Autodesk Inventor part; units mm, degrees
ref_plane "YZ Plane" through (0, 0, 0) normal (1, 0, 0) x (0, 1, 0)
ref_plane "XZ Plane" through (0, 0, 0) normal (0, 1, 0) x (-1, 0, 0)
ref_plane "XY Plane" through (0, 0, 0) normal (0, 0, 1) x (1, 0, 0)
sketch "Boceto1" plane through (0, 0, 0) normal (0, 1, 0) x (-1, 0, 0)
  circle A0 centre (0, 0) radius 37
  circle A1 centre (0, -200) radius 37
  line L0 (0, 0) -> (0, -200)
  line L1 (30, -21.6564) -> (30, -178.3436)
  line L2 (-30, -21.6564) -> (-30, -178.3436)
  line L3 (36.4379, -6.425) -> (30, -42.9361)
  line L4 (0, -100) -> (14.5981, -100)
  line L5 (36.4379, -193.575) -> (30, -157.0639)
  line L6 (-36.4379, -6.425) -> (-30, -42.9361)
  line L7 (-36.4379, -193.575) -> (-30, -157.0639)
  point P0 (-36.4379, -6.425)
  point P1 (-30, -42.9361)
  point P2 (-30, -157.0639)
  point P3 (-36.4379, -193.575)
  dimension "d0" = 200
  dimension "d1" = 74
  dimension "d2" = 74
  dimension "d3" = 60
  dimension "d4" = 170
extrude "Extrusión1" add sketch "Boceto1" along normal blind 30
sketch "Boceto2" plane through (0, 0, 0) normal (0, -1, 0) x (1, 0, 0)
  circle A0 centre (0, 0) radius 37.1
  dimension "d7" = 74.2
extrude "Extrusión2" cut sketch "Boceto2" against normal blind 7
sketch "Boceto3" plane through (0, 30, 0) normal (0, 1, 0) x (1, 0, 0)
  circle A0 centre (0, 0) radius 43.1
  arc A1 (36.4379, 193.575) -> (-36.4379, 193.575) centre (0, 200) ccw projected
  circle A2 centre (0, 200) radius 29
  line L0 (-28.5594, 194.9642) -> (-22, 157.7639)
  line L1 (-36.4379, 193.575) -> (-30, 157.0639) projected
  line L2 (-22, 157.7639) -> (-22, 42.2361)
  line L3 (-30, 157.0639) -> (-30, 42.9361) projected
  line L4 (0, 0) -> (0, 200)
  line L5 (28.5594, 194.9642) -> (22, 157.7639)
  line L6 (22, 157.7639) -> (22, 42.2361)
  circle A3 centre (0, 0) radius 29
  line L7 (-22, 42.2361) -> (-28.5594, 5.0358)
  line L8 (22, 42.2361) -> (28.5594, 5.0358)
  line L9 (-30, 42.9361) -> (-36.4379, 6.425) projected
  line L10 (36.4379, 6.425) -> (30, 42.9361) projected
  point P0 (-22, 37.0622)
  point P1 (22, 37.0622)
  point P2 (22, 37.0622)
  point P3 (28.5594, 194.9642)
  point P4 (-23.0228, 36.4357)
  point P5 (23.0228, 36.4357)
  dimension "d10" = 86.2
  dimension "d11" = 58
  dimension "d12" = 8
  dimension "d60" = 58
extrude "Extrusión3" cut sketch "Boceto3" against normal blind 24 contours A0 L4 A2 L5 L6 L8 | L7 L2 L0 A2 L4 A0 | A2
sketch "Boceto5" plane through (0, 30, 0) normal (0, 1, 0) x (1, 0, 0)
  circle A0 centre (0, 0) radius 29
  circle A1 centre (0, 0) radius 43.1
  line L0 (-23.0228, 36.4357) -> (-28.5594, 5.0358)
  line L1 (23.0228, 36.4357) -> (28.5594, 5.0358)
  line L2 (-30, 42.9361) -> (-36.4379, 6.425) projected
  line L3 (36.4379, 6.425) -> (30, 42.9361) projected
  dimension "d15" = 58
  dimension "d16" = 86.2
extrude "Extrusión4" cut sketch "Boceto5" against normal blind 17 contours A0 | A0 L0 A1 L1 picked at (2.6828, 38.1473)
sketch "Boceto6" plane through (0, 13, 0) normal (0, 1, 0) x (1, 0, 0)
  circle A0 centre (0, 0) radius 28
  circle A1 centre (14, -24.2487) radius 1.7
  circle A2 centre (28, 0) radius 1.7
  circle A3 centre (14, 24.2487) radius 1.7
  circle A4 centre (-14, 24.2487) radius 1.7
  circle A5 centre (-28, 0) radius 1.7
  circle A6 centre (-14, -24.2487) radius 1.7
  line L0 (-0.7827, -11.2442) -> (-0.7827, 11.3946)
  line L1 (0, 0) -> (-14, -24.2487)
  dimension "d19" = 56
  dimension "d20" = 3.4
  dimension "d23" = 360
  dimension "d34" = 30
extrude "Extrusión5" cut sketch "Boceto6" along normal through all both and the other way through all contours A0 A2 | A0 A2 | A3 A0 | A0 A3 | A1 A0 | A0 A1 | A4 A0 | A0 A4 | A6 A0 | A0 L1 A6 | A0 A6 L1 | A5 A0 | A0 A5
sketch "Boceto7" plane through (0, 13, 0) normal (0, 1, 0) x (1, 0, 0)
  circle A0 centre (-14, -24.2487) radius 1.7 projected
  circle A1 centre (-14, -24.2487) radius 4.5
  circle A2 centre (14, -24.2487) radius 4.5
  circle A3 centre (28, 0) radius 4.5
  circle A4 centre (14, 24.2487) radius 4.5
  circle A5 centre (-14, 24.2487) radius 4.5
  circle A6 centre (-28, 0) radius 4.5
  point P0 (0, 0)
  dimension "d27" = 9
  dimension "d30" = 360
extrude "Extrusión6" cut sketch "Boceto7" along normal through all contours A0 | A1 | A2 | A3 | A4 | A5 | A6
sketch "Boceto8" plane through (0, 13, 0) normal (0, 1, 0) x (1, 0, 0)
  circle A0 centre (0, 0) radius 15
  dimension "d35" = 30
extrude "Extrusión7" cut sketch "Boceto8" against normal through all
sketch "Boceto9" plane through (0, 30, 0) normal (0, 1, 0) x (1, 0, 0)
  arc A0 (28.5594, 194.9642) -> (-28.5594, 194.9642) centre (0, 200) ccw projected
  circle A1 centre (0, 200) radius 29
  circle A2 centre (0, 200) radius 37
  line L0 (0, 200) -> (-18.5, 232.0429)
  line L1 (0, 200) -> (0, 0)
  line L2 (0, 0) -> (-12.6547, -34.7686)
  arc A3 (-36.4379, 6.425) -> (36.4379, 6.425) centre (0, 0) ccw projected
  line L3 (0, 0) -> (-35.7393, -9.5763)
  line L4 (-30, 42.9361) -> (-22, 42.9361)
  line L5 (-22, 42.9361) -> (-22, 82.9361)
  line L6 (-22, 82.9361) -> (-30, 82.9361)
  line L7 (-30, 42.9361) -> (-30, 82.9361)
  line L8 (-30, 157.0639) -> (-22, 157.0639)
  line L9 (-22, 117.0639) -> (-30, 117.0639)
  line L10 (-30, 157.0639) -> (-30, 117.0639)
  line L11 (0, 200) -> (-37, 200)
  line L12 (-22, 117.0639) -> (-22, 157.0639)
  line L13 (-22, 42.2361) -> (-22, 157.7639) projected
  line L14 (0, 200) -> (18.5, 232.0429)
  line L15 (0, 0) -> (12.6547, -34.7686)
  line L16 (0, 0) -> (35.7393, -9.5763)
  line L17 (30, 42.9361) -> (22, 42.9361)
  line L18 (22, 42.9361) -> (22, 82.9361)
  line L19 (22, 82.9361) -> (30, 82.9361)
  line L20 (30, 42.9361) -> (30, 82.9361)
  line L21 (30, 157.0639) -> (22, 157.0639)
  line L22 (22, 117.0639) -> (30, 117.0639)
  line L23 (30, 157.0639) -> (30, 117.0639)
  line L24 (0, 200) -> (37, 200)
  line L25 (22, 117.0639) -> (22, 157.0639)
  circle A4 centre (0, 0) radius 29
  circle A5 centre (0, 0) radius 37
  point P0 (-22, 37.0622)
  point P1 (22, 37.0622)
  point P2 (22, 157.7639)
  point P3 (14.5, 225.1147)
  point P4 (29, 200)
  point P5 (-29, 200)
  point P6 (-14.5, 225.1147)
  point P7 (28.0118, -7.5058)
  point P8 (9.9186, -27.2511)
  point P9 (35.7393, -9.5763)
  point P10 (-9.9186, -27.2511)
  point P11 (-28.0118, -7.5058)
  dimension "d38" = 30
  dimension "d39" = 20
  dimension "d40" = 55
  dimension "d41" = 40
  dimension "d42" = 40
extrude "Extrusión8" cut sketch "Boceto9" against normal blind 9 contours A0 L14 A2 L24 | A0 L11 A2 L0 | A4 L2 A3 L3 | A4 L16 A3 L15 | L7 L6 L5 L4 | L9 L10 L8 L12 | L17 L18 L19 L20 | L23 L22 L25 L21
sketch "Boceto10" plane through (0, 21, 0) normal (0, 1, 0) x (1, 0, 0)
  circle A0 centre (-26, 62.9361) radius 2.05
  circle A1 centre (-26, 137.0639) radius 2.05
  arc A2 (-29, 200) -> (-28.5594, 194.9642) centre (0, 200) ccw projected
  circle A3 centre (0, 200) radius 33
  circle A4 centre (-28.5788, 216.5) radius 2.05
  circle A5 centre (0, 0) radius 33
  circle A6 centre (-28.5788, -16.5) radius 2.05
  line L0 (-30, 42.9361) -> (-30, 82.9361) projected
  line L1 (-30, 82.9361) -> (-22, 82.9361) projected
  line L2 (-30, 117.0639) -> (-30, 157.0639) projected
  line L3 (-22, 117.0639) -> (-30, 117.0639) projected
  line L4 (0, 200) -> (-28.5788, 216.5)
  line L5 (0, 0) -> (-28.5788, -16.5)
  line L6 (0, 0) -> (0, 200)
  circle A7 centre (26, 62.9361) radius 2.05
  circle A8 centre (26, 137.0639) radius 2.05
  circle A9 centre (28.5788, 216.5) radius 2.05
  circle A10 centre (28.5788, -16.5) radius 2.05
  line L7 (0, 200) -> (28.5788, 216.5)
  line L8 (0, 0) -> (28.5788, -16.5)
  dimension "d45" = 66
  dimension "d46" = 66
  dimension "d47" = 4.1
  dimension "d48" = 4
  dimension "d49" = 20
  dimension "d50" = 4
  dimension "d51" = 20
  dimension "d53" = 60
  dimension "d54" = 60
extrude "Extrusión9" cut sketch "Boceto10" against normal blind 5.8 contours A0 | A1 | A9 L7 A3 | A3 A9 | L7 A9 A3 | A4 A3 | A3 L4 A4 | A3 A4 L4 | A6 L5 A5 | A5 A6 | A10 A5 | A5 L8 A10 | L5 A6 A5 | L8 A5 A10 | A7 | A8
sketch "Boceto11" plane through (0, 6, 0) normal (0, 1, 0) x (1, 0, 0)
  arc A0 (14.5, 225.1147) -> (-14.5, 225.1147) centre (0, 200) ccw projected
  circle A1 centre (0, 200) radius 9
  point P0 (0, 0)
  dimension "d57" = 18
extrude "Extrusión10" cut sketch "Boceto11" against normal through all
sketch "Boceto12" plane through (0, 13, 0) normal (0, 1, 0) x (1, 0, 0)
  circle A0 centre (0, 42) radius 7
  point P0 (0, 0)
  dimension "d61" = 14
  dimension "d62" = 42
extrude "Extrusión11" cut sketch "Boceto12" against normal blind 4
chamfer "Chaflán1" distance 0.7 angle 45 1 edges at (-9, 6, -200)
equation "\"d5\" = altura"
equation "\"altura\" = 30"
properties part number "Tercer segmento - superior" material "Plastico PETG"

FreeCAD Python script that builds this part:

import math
import FreeCAD as App
import Part
import Sketcher
Q = App.Units.Quantity


def edges_at(feature, points):
    """Names of the edges that pass closest to the given points."""
    edges = feature.Shape.Edges
    near = lambda p: min(range(len(edges)), key=lambda i: edges[i].distToShape(Part.Vertex(*p))[0])
    return sorted({f"Edge{near(p) + 1}" for p in points})

doc = App.newDocument("Part")
params = doc.addObject("Spreadsheet::Sheet", "Params")
for row, (alias, value) in enumerate([
    ("sketch1_radius", "37 mm"),
    ("pad1_length", "30 mm"),
    ("sketch2_diameter", "74.2 mm"),
    ("pocket1_length", "7 mm"),
    ("sketch3_radius", "29 mm"),
    ("sketch3_radius2", "43.1 mm"),
    ("pocket2_length", "24 mm"),
    ("sketch4_radius", "29 mm"),
    ("sketch4_radius2", "43.1 mm"),
    ("pocket3_length", "17 mm"),
    ("sketch5_diameter", "3.4 mm"),
    ("sketch6_diameter", "9 mm"),
    ("sketch7_diameter", "30 mm"),
    ("sketch8_height", "40 mm"),
    ("sketch8_radius", "29 mm"),
    ("sketch8_radius2", "37 mm"),
    ("pocket7_length", "9 mm"),
    ("sketch9_diameter", "4.1 mm"),
    ("pocket8_length", "5.8 mm"),
    ("sketch10_diameter", "18 mm"),
    ("sketch11_diameter", "14 mm"),
    ("pocket10_length", "4 mm"),
    ("chamfer_size", "0.7 mm"),
], start=1):
    params.set(f"A{row}", alias)
    params.set(f"B{row}", "=" + value)
    params.setAlias(f"B{row}", alias)

body = doc.addObject("PartDesign::Body", "Body")

# Sketch on XZ plane
sketch1 = doc.addObject("Sketcher::SketchObject", "Sketch")
body.addObject(sketch1)
sketch1.AttachmentSupport = (doc.XZ_Plane, [""])
sketch1.MapMode = "FlatFace"
sketch1.addGeometry([
    Part.ArcOfCircle(Part.Circle(App.Vector(0, 0, 0), App.Vector(0, 0, 1), 37), math.radians(-10.000023), math.radians(190.000023)),  # 0
    Part.LineSegment(App.Vector(36.4379, -6.425, 0), App.Vector(30, -42.9361, 0)),  # 1
    Part.LineSegment(App.Vector(30, -42.9361, 0), App.Vector(30, -157.0639, 0)),  # 2
    Part.LineSegment(App.Vector(30, -157.0639, 0), App.Vector(36.4379, -193.575, 0)),  # 3
    Part.ArcOfCircle(Part.Circle(App.Vector(0, -200, 0), App.Vector(0, 0, 1), 37), math.radians(169.999977), math.radians(370.000023)),  # 4
    Part.LineSegment(App.Vector(-36.4379, -193.575, 0), App.Vector(-30, -157.0639, 0)),  # 5
    Part.LineSegment(App.Vector(-30, -157.0639, 0), App.Vector(-30, -42.9361, 0)),  # 6
    Part.LineSegment(App.Vector(-30, -42.9361, 0), App.Vector(-36.4379, -6.425, 0)),  # 7
], False)
sketch1.addConstraint([
    Sketcher.Constraint("Tangent", 0, 1, 1, 1),
    Sketcher.Constraint("Coincident", 1, 2, 2, 1),
    Sketcher.Constraint("Coincident", 2, 2, 3, 1),
    Sketcher.Constraint("Tangent", 3, 2, 4, 2),
    Sketcher.Constraint("Tangent", 4, 1, 5, 1),
    Sketcher.Constraint("Coincident", 5, 2, 6, 1),
    Sketcher.Constraint("Coincident", 6, 2, 7, 1),
    Sketcher.Constraint("Tangent", 7, 2, 0, 2),
    Sketcher.Constraint("Vertical", 2),
    Sketcher.Constraint("Vertical", 6),
    Sketcher.Constraint("Coincident", 0, 3, -1, 1),
    Sketcher.Constraint("Equal", 0, 4),
    Sketcher.Constraint("Symmetric", 3, 2, 4, 1, -2),
    Sketcher.Constraint("Symmetric", 1, 2, 6, 2, -2),
    Sketcher.Constraint("Parallel", 1, 5),
    Sketcher.Constraint("Radius", 0, Q("37 mm")),
    Sketcher.Constraint("DistanceY", 4, 3, -1, 1, Q("200 mm")),
    Sketcher.Constraint("DistanceX", 5, 2, 2, 2, Q("60 mm")),
    Sketcher.Constraint("Angle", 1, Q("-100 deg")),
])
sketch1.setExpression("Constraints[15]", "Params.sketch1_radius")
pad1 = doc.addObject("PartDesign::Pad", "Pad")
body.addObject(pad1)
pad1.Profile = sketch1
pad1.setExpression("Length", "Params.pad1_length")
pad1.Reversed = True

# Sketch on XZ plane
sketch2 = doc.addObject("Sketcher::SketchObject", "Sketch001")
body.addObject(sketch2)
sketch2.AttachmentSupport = (doc.XZ_Plane, [""])
sketch2.MapMode = "FlatFace"
sketch2.addGeometry(Part.Circle(App.Vector(0, 0, 0), App.Vector(0, 0, 1), 37.1), False)
sketch2.addConstraint([
    Sketcher.Constraint("Coincident", 0, 3, -1, 1),
    Sketcher.Constraint("Diameter", 0, Q("74.2 mm")),
])
sketch2.setExpression("Constraints[1]", "Params.sketch2_diameter")
pocket1 = doc.addObject("PartDesign::Pocket", "Pocket")
body.addObject(pocket1)
pocket1.Profile = sketch2
pocket1.setExpression("Length", "Params.pocket1_length")

# Sketch on XZ plane
sketch3 = doc.addObject("Sketcher::SketchObject", "Sketch002")
body.addObject(sketch3)
sketch3.AttachmentSupport = (doc.XZ_Plane, [""])
sketch3.MapMode = "FlatFace"
sketch3.AttachmentOffset = App.Placement(App.Vector(0, 0, -30), App.Rotation())
sketch3.addGeometry([
    Part.LineSegment(App.Vector(23.022759, -36.435732, 0), App.Vector(22, -42.2361, 0)),  # 0
    Part.LineSegment(App.Vector(22, -42.2361, 0), App.Vector(22, -157.7639, 0)),  # 1
    Part.LineSegment(App.Vector(22, -157.7639, 0), App.Vector(28.5594, -194.9642, 0)),  # 2
    Part.ArcOfCircle(Part.Circle(App.Vector(0, -200, 0), App.Vector(0, 0, 1), 29), math.radians(169.999986), math.radians(370.000014)),  # 3
    Part.LineSegment(App.Vector(-28.5594, -194.9642, 0), App.Vector(-22, -157.7639, 0)),  # 4
    Part.LineSegment(App.Vector(-22, -157.7639, 0), App.Vector(-22, -42.2361, 0)),  # 5
    Part.LineSegment(App.Vector(-22, -42.2361, 0), App.Vector(-23.022759, -36.435732, 0)),  # 6
    Part.ArcOfCircle(Part.Circle(App.Vector(0, 0, 0), App.Vector(0, 0, 1), 43.1), math.radians(-122.28769), math.radians(-57.71231)),  # 7
], False)
sketch3.addConstraint([
    Sketcher.Constraint("Coincident", 0, 2, 1, 1),
    Sketcher.Constraint("Coincident", 1, 2, 2, 1),
    Sketcher.Constraint("Tangent", 2, 2, 3, 2),
    Sketcher.Constraint("Tangent", 3, 1, 4, 1),
    Sketcher.Constraint("Coincident", 4, 2, 5, 1),
    Sketcher.Constraint("Coincident", 5, 2, 6, 1),
    Sketcher.Constraint("Coincident", 6, 2, 7, 1),
    Sketcher.Constraint("Coincident", 7, 2, 0, 1),
    Sketcher.Constraint("Vertical", 1),
    Sketcher.Constraint("Vertical", 5),
    Sketcher.Constraint("Coincident", 7, 3, -1, 1),
    Sketcher.Constraint("Symmetric", 2, 2, 3, 1, -2),
    Sketcher.Constraint("Symmetric", 0, 2, 5, 2, -2),
    Sketcher.Constraint("Parallel", 0, 4),
    Sketcher.Constraint("Parallel", 2, 6),
    Sketcher.Constraint("Radius", 3, Q("29 mm")),
    Sketcher.Constraint("Radius", 7, Q("43.1 mm")),
    Sketcher.Constraint("Angle", 0, Q("-100 deg")),
    Sketcher.Constraint("DistanceY", 3, 3, -1, 1, Q("200 mm")),
    Sketcher.Constraint("DistanceX", -1, 1, 0, 2, Q("22 mm")),
    Sketcher.Constraint("DistanceY", 1, 2, 1, 1, Q("115.5278 mm")),
])
sketch3.setExpression("Constraints[15]", "Params.sketch3_radius")
sketch3.setExpression("Constraints[16]", "Params.sketch3_radius2")
pocket2 = doc.addObject("PartDesign::Pocket", "Pocket001")
body.addObject(pocket2)
pocket2.Profile = sketch3
pocket2.setExpression("Length", "Params.pocket2_length")
pocket2.Reversed = True

# Sketch on XZ plane
sketch4 = doc.addObject("Sketcher::SketchObject", "Sketch003")
body.addObject(sketch4)
sketch4.AttachmentSupport = (doc.XZ_Plane, [""])
sketch4.MapMode = "FlatFace"
sketch4.AttachmentOffset = App.Placement(App.Vector(0, 0, -30), App.Rotation())
sketch4.addGeometry([
    Part.ArcOfCircle(Part.Circle(App.Vector(0, 0, 0), App.Vector(0, 0, 1), 29), math.radians(-10.000014), math.radians(190.000014)),
    Part.LineSegment(App.Vector(28.5594, -5.0358, 0), App.Vector(23.0228, -36.4357, 0)),
    Part.ArcOfCircle(Part.Circle(App.Vector(0, 0, 0), App.Vector(0, 0, 1), 43.1), math.radians(-122.287759), math.radians(-57.712241)),
    Part.LineSegment(App.Vector(-23.0228, -36.4357, 0), App.Vector(-28.5594, -5.0358, 0)),
], False)
sketch4.addConstraint([
    Sketcher.Constraint("Tangent", 0, 1, 1, 1),
    Sketcher.Constraint("Coincident", 1, 2, 2, 2),
    Sketcher.Constraint("Coincident", 2, 1, 3, 1),
    Sketcher.Constraint("Tangent", 3, 2, 0, 2),
    Sketcher.Constraint("Coincident", 0, 3, -1, 1),
    Sketcher.Constraint("Coincident", 2, 3, -1, 1),
    Sketcher.Constraint("Horizontal", 1, 2, 2, 1),
    Sketcher.Constraint("Radius", 0, Q("29 mm")),
    Sketcher.Constraint("Radius", 2, Q("43.1 mm")),
    Sketcher.Constraint("Angle", 1, Q("-100 deg")),
])
sketch4.setExpression("Constraints[7]", "Params.sketch4_radius")
sketch4.setExpression("Constraints[8]", "Params.sketch4_radius2")
pocket3 = doc.addObject("PartDesign::Pocket", "Pocket002")
body.addObject(pocket3)
pocket3.Profile = sketch4
pocket3.setExpression("Length", "Params.pocket3_length")
pocket3.Reversed = True

# Sketch on XZ plane
sketch5 = doc.addObject("Sketcher::SketchObject", "Sketch004")
body.addObject(sketch5)
sketch5.AttachmentSupport = (doc.XZ_Plane, [""])
sketch5.MapMode = "FlatFace"
sketch5.AttachmentOffset = App.Placement(App.Vector(0, 0, -13), App.Rotation())
sketch5.addGeometry([
    Part.Circle(App.Vector(28, 0, 0), App.Vector(0, 0, 1), 1.7),  # 0
    Part.Circle(App.Vector(14, -24.2487, 0), App.Vector(0, 0, 1), 1.7),  # 1
    Part.Circle(App.Vector(14, 24.2487, 0), App.Vector(0, 0, 1), 1.7),  # 2
    Part.Circle(App.Vector(-14, -24.2487, 0), App.Vector(0, 0, 1), 1.7),  # 3
    Part.Circle(App.Vector(-14, 24.2487, 0), App.Vector(0, 0, 1), 1.7),  # 4
    Part.Circle(App.Vector(-28, 0, 0), App.Vector(0, 0, 1), 1.7),  # 5
], False)
sketch5.addConstraint([
    Sketcher.Constraint("Equal", 0, 1),
    Sketcher.Constraint("Equal", 1, 2),
    Sketcher.Constraint("Equal", 2, 3),
    Sketcher.Constraint("Equal", 3, 4),
    Sketcher.Constraint("Equal", 4, 5),
    Sketcher.Constraint("Symmetric", 2, 3, 3, 3, -1, 1),
    Sketcher.Constraint("Symmetric", 1, 3, 4, 3, -1, 1),
    Sketcher.Constraint("Symmetric", 0, 3, 5, 3, -1, 1),
    Sketcher.Constraint("Symmetric", 1, 3, 3, 3, -2),
    Sketcher.Constraint("PointOnObject", 0, 3, -1),
    Sketcher.Constraint("Diameter", 0, Q("3.4 mm")),
    Sketcher.Constraint("DistanceX", 5, 3, 0, 3, Q("56 mm")),
    Sketcher.Constraint("DistanceX", -1, 1, 1, 3, Q("14 mm")),
    Sketcher.Constraint("DistanceY", 1, 3, -1, 1, Q("24.2487 mm")),
])
sketch5.setExpression("Constraints[10]", "Params.sketch5_diameter")
pocket4 = doc.addObject("PartDesign::Pocket", "Pocket003")
body.addObject(pocket4)
pocket4.Profile = sketch5
pocket4.Type = "ThroughAll"
pocket4.Midplane = True

# Sketch on XZ plane
sketch6 = doc.addObject("Sketcher::SketchObject", "Sketch005")
body.addObject(sketch6)
sketch6.AttachmentSupport = (doc.XZ_Plane, [""])
sketch6.MapMode = "FlatFace"
sketch6.AttachmentOffset = App.Placement(App.Vector(0, 0, -13), App.Rotation())
sketch6.addGeometry([
    Part.Circle(App.Vector(-14, 24.2487, 0), App.Vector(0, 0, 1), 4.5),  # 0
    Part.Circle(App.Vector(14, 24.2487, 0), App.Vector(0, 0, 1), 4.5),  # 1
    Part.Circle(App.Vector(28, 0, 0), App.Vector(0, 0, 1), 4.5),  # 2
    Part.Circle(App.Vector(14, -24.2487, 0), App.Vector(0, 0, 1), 4.5),  # 3
    Part.Circle(App.Vector(-14, -24.2487, 0), App.Vector(0, 0, 1), 4.5),  # 4
    Part.Circle(App.Vector(-28, 0, 0), App.Vector(0, 0, 1), 4.5),  # 5
], False)
sketch6.addConstraint([
    Sketcher.Constraint("Equal", 0, 1),
    Sketcher.Constraint("Equal", 1, 2),
    Sketcher.Constraint("Equal", 2, 3),
    Sketcher.Constraint("Equal", 3, 4),
    Sketcher.Constraint("Equal", 4, 5),
    Sketcher.Constraint("Symmetric", 0, 3, 3, 3, -1, 1),
    Sketcher.Constraint("Symmetric", 1, 3, 4, 3, -1, 1),
    Sketcher.Constraint("Symmetric", 2, 3, 5, 3, -1, 1),
    Sketcher.Constraint("Symmetric", 0, 3, 1, 3, -2),
    Sketcher.Constraint("PointOnObject", 2, 3, -1),
    Sketcher.Constraint("Diameter", 0, Q("9 mm")),
    Sketcher.Constraint("DistanceX", 0, 3, -1, 1, Q("14 mm")),
    Sketcher.Constraint("DistanceX", -1, 1, 2, 3, Q("28 mm")),
    Sketcher.Constraint("DistanceY", -1, 1, 0, 3, Q("24.2487 mm")),
])
sketch6.setExpression("Constraints[10]", "Params.sketch6_diameter")
pocket5 = doc.addObject("PartDesign::Pocket", "Pocket004")
body.addObject(pocket5)
pocket5.Profile = sketch6
pocket5.Type = "ThroughAll"

# Sketch on XZ plane
sketch7 = doc.addObject("Sketcher::SketchObject", "Sketch006")
body.addObject(sketch7)
sketch7.AttachmentSupport = (doc.XZ_Plane, [""])
sketch7.MapMode = "FlatFace"
sketch7.AttachmentOffset = App.Placement(App.Vector(0, 0, -13), App.Rotation())
sketch7.addGeometry(Part.Circle(App.Vector(0, 0, 0), App.Vector(0, 0, 1), 15), False)
sketch7.addConstraint([
    Sketcher.Constraint("Coincident", 0, 3, -1, 1),
    Sketcher.Constraint("Diameter", 0, Q("30 mm")),
])
sketch7.setExpression("Constraints[1]", "Params.sketch7_diameter")
pocket6 = doc.addObject("PartDesign::Pocket", "Pocket005")
body.addObject(pocket6)
pocket6.Profile = sketch7
pocket6.Type = "ThroughAll"
pocket6.Reversed = True

# Sketch on XZ plane
sketch8 = doc.addObject("Sketcher::SketchObject", "Sketch007")
body.addObject(sketch8)
sketch8.AttachmentSupport = (doc.XZ_Plane, [""])
sketch8.MapMode = "FlatFace"
sketch8.AttachmentOffset = App.Placement(App.Vector(0, 0, -30), App.Rotation())
sketch8.addGeometry([
    Part.ArcOfCircle(Part.Circle(App.Vector(0, -200, 0), App.Vector(0, 0, 1), 28.999976), math.radians(-59.999969), math.radians(0)),  # 0
    Part.LineSegment(App.Vector(29, -200, 0), App.Vector(37, -200, 0)),  # 1
    Part.ArcOfCircle(Part.Circle(App.Vector(0, -200, 0), App.Vector(0, 0, 1), 37), math.radians(-59.999969), math.radians(0)),  # 2
    Part.LineSegment(App.Vector(18.5, -232.0429, 0), App.Vector(14.500008, -225.114719, 0)),  # 3
    Part.ArcOfCircle(Part.Circle(App.Vector(0, -200, 0), App.Vector(0, 0, 1), 28.999976), math.radians(180), math.radians(239.999969)),  # 4
    Part.LineSegment(App.Vector(-14.500008, -225.114719, 0), App.Vector(-18.5, -232.0429, 0)),  # 5
    Part.ArcOfCircle(Part.Circle(App.Vector(0, -200, 0), App.Vector(0, 0, 1), 37), math.radians(180), math.radians(239.999969)),  # 6
    Part.LineSegment(App.Vector(-37, -200, 0), App.Vector(-28.999988, -200, 0)),  # 7
    Part.ArcOfCircle(Part.Circle(App.Vector(0, 0, 0), App.Vector(0, 0, 1), 29), math.radians(109.999948), math.radians(165.000025)),  # 8
    Part.LineSegment(App.Vector(-28.011852, 7.50574, 0), App.Vector(-35.7393, 9.5763, 0)),  # 9
    Part.ArcOfCircle(Part.Circle(App.Vector(0, 0, 0), App.Vector(0, 0, 1), 37.000016), math.radians(109.999948), math.radians(165.000025)),  # 10
    Part.LineSegment(App.Vector(-12.6547, 34.7686, 0), App.Vector(-9.91856, 27.251095, 0)),  # 11
    Part.ArcOfCircle(Part.Circle(App.Vector(0, 0, 0), App.Vector(0, 0, 1), 29), math.radians(14.999975), math.radians(70.000052)),  # 12
    Part.LineSegment(App.Vector(9.91856, 27.251095, 0), App.Vector(12.6547, 34.7686, 0)),  # 13
    Part.ArcOfCircle(Part.Circle(App.Vector(0, 0, 0), App.Vector(0, 0, 1), 37.000016), math.radians(14.999975), math.radians(70.000052)),  # 14
    Part.LineSegment(App.Vector(35.7393, 9.5763, 0), App.Vector(28.011852, 7.50574, 0)),  # 15
    Part.LineSegment(App.Vector(-30, -82.9361, 0), App.Vector(-30, -42.9361, 0)),  # 16
    Part.LineSegment(App.Vector(-30, -42.9361, 0), App.Vector(-22, -42.9361, 0)),  # 17
    Part.LineSegment(App.Vector(-22, -42.9361, 0), App.Vector(-22, -82.9361, 0)),  # 18
    Part.LineSegment(App.Vector(-22, -82.9361, 0), App.Vector(-30, -82.9361, 0)),  # 19
    Part.LineSegment(App.Vector(-30, -117.0639, 0), App.Vector(-22, -117.0639, 0)),  # 20
    Part.LineSegment(App.Vector(-22, -117.0639, 0), App.Vector(-22, -157.0639, 0)),  # 21
    Part.LineSegment(App.Vector(-22, -157.0639, 0), App.Vector(-30, -157.0639, 0)),  # 22
    Part.LineSegment(App.Vector(-30, -157.0639, 0), App.Vector(-30, -117.0639, 0)),  # 23
    Part.LineSegment(App.Vector(22, -42.9361, 0), App.Vector(30, -42.9361, 0)),  # 24
    Part.LineSegment(App.Vector(30, -42.9361, 0), App.Vector(30, -82.9361, 0)),  # 25
    Part.LineSegment(App.Vector(30, -82.9361, 0), App.Vector(22, -82.9361, 0)),  # 26
    Part.LineSegment(App.Vector(22, -82.9361, 0), App.Vector(22, -42.9361, 0)),  # 27
    Part.LineSegment(App.Vector(30, -117.0639, 0), App.Vector(30, -157.0639, 0)),  # 28
    Part.LineSegment(App.Vector(30, -157.0639, 0), App.Vector(22, -157.0639, 0)),  # 29
    Part.LineSegment(App.Vector(22, -157.0639, 0), App.Vector(22, -117.0639, 0)),  # 30
    Part.LineSegment(App.Vector(22, -117.0639, 0), App.Vector(30, -117.0639, 0)),  # 31
], False)
sketch8.addConstraint([
    Sketcher.Constraint("Coincident", 0, 2, 1, 1),
    Sketcher.Constraint("Coincident", 1, 2, 2, 2),
    Sketcher.Constraint("Coincident", 2, 1, 3, 1),
    Sketcher.Constraint("Coincident", 3, 2, 0, 1),
    Sketcher.Constraint("Coincident", 4, 2, 5, 1),
    Sketcher.Constraint("Coincident", 5, 2, 6, 2),
    Sketcher.Constraint("Coincident", 6, 1, 7, 1),
    Sketcher.Constraint("Coincident", 7, 2, 4, 1),
    Sketcher.Constraint("Coincident", 8, 2, 9, 1),
    Sketcher.Constraint("Coincident", 9, 2, 10, 2),
    Sketcher.Constraint("Coincident", 10, 1, 11, 1),
    Sketcher.Constraint("Coincident", 11, 2, 8, 1),
    Sketcher.Constraint("Coincident", 12, 2, 13, 1),
    Sketcher.Constraint("Coincident", 13, 2, 14, 2),
    Sketcher.Constraint("Coincident", 14, 1, 15, 1),
    Sketcher.Constraint("Coincident", 15, 2, 12, 1),
    Sketcher.Constraint("Coincident", 16, 2, 17, 1),
    Sketcher.Constraint("Coincident", 17, 2, 18, 1),
    Sketcher.Constraint("Coincident", 18, 2, 19, 1),
    Sketcher.Constraint("Coincident", 19, 2, 16, 1),
    Sketcher.Constraint("Coincident", 20, 2, 21, 1),
    Sketcher.Constraint("Coincident", 21, 2, 22, 1),
    Sketcher.Constraint("Coincident", 22, 2, 23, 1),
    Sketcher.Constraint("Coincident", 23, 2, 20, 1),
    Sketcher.Constraint("Coincident", 24, 2, 25, 1),
    Sketcher.Constraint("Coincident", 25, 2, 26, 1),
    Sketcher.Constraint("Coincident", 26, 2, 27, 1),
    Sketcher.Constraint("Coincident", 27, 2, 24, 1),
    Sketcher.Constraint("Coincident", 28, 2, 29, 1),
    Sketcher.Constraint("Coincident", 29, 2, 30, 1),
    Sketcher.Constraint("Coincident", 30, 2, 31, 1),
    Sketcher.Constraint("Coincident", 31, 2, 28, 1),
    Sketcher.Constraint("Horizontal", 1),
    Sketcher.Constraint("Horizontal", 7),
    Sketcher.Constraint("Vertical", 16),
    Sketcher.Constraint("Horizontal", 17),
    Sketcher.Constraint("Vertical", 18),
    Sketcher.Constraint("Horizontal", 19),
    Sketcher.Constraint("Horizontal", 20),
    Sketcher.Constraint("Vertical", 21),
    Sketcher.Constraint("Horizontal", 22),
    Sketcher.Constraint("Vertical", 23),
    Sketcher.Constraint("Horizontal", 24),
    Sketcher.Constraint("Vertical", 25),
    Sketcher.Constraint("Horizontal", 26),
    Sketcher.Constraint("Vertical", 27),
    Sketcher.Constraint("Vertical", 28),
    Sketcher.Constraint("Horizontal", 29),
    Sketcher.Constraint("Vertical", 30),
    Sketcher.Constraint("Horizontal", 31),
    Sketcher.Constraint("Coincident", 8, 3, -1, 1),
    Sketcher.Constraint("Coincident", 10, 3, -1, 1),
    Sketcher.Constraint("Coincident", 12, 3, -1, 1),
    Sketcher.Constraint("Coincident", 14, 3, -1, 1),
    Sketcher.Constraint("Coincident", 2, 3, 0, 3),
    Sketcher.Constraint("Coincident", 4, 3, 0, 3),
    Sketcher.Constraint("Coincident", 6, 3, 0, 3),
    Sketcher.Constraint("Equal", 0, 4),
    Sketcher.Constraint("Equal", 2, 6),
    Sketcher.Constraint("Equal", 4, 8),
    Sketcher.Constraint("Equal", 6, 10),
    Sketcher.Constraint("Equal", 8, 12),
    Sketcher.Constraint("Equal", 10, 14),
    Sketcher.Constraint("Symmetric", 3, 2, 4, 2, -2),
    Sketcher.Constraint("Symmetric", 16, 2, 24, 2, -2),
    Sketcher.Constraint("Symmetric", 18, 2, 26, 2, -2),
    Sketcher.Constraint("Symmetric", 22, 2, 28, 2, -2),
    Sketcher.Constraint("Symmetric", 20, 2, 30, 2, -2),
    Sketcher.Constraint("Horizontal", 6, 3, 0, 2),
    Sketcher.Constraint("Horizontal", 2, 1, 5, 2),
    Sketcher.Constraint("Horizontal", 1, 2, 6, 1),
    Sketcher.Constraint("Horizontal", 11, 2, 12, 2),
    Sketcher.Constraint("Horizontal", 10, 1, 13, 2),
    Sketcher.Constraint("Horizontal", 9, 2, 14, 1),
    Sketcher.Constraint("Horizontal", 8, 2, 15, 2),
    Sketcher.Constraint("Vertical", 18, 2, 20, 2),
    Sketcher.Constraint("Vertical", 19, 2, 22, 2),
    Sketcher.Constraint("Equal", 7, 17),
    Sketcher.Constraint("Equal", 18, 21),
    Sketcher.Constraint("DistanceY", 16, 1, 16, 2, Q("40 mm")),
    Sketcher.Constraint("DistanceX", 16, 2, -1, 1, Q("30 mm")),
    Sketcher.Constraint("Radius", 0, Q("29 mm")),
    Sketcher.Constraint("Radius", 2, Q("37 mm")),
    Sketcher.Constraint("Angle", 3, Q("120 deg")),
    Sketcher.Constraint("Angle", 9, Q("165 deg")),
    Sketcher.Constraint("Angle", 11, Q("-70 deg")),
    Sketcher.Constraint("DistanceY", 0, 3, -1, 1, Q("200 mm")),
    Sketcher.Constraint("DistanceX", 4, 2, 3, 2, Q("29 mm")),
    Sketcher.Constraint("DistanceY", -1, 1, 11, 2, Q("27.251 mm")),
    Sketcher.Constraint("DistanceY", 16, 2, -1, 1, Q("42.936 mm")),
    Sketcher.Constraint("DistanceY", 20, 2, -1, 1, Q("117.064 mm")),
    Sketcher.Constraint("DistanceY", 8, 2, 10, 1, Q("27.263 mm")),
])
sketch8.setExpression("Constraints[79]", "Params.sketch8_height")
sketch8.setExpression("Constraints[81]", "Params.sketch8_radius")
sketch8.setExpression("Constraints[82]", "Params.sketch8_radius2")
pocket7 = doc.addObject("PartDesign::Pocket", "Pocket006")
body.addObject(pocket7)
pocket7.Profile = sketch8
pocket7.setExpression("Length", "Params.pocket7_length")
pocket7.Reversed = True

# Sketch on XZ plane
sketch9 = doc.addObject("Sketcher::SketchObject", "Sketch008")
body.addObject(sketch9)
sketch9.AttachmentSupport = (doc.XZ_Plane, [""])
sketch9.MapMode = "FlatFace"
sketch9.AttachmentOffset = App.Placement(App.Vector(0, 0, -21), App.Rotation())
sketch9.addGeometry([
    Part.Circle(App.Vector(-26, -62.9361, 0), App.Vector(0, 0, 1), 2.05),  # 0
    Part.Circle(App.Vector(-26, -137.0639, 0), App.Vector(0, 0, 1), 2.05),  # 1
    Part.Circle(App.Vector(28.5788, -216.5, 0), App.Vector(0, 0, 1), 2.05),  # 2
    Part.Circle(App.Vector(-28.5788, -216.5, 0), App.Vector(0, 0, 1), 2.05),  # 3
    Part.Circle(App.Vector(-28.5788, 16.5, 0), App.Vector(0, 0, 1), 2.05),  # 4
    Part.Circle(App.Vector(28.5788, 16.5, 0), App.Vector(0, 0, 1), 2.05),  # 5
    Part.Circle(App.Vector(26, -62.9361, 0), App.Vector(0, 0, 1), 2.05),  # 6
    Part.Circle(App.Vector(26, -137.0639, 0), App.Vector(0, 0, 1), 2.05),  # 7
], False)
sketch9.addConstraint([
    Sketcher.Constraint("Equal", 0, 1),
    Sketcher.Constraint("Equal", 1, 2),
    Sketcher.Constraint("Equal", 2, 3),
    Sketcher.Constraint("Equal", 3, 4),
    Sketcher.Constraint("Equal", 4, 5),
    Sketcher.Constraint("Equal", 5, 6),
    Sketcher.Constraint("Equal", 6, 7),
    Sketcher.Constraint("Symmetric", 2, 3, 3, 3, -2),
    Sketcher.Constraint("Symmetric", 4, 3, 5, 3, -2),
    Sketcher.Constraint("Symmetric", 0, 3, 6, 3, -2),
    Sketcher.Constraint("Symmetric", 1, 3, 7, 3, -2),
    Sketcher.Constraint("Vertical", 0, 3, 1, 3),
    Sketcher.Constraint("Vertical", 3, 3, 4, 3),
    Sketcher.Constraint("Diameter", 0, Q("4.1 mm")),
    Sketcher.Constraint("DistanceX", 0, 3, -1, 1, Q("26 mm")),
    Sketcher.Constraint("DistanceY", 3, 3, 4, 3, Q("233 mm")),
    Sketcher.Constraint("DistanceY", 2, 3, -1, 1, Q("216.5 mm")),
    Sketcher.Constraint("DistanceY", 0, 3, -1, 1, Q("62.936 mm")),
    Sketcher.Constraint("DistanceY", 1, 3, -1, 1, Q("137.064 mm")),
    Sketcher.Constraint("DistanceX", -1, 1, 2, 3, Q("28.5788 mm")),
])
sketch9.setExpression("Constraints[13]", "Params.sketch9_diameter")
pocket8 = doc.addObject("PartDesign::Pocket", "Pocket007")
body.addObject(pocket8)
pocket8.Profile = sketch9
pocket8.setExpression("Length", "Params.pocket8_length")
pocket8.Reversed = True

# Sketch on XZ plane
sketch10 = doc.addObject("Sketcher::SketchObject", "Sketch009")
body.addObject(sketch10)
sketch10.AttachmentSupport = (doc.XZ_Plane, [""])
sketch10.MapMode = "FlatFace"
sketch10.AttachmentOffset = App.Placement(App.Vector(0, 0, -6), App.Rotation())
sketch10.addGeometry(Part.Circle(App.Vector(0, -200, 0), App.Vector(0, 0, 1), 9), False)
sketch10.addConstraint([
    Sketcher.Constraint("PointOnObject", 0, 3, -2),
    Sketcher.Constraint("Diameter", 0, Q("18 mm")),
    Sketcher.Constraint("DistanceY", 0, 3, -1, 1, Q("200 mm")),
])
sketch10.setExpression("Constraints[1]", "Params.sketch10_diameter")
pocket9 = doc.addObject("PartDesign::Pocket", "Pocket008")
body.addObject(pocket9)
pocket9.Profile = sketch10
pocket9.Type = "ThroughAll"
pocket9.Reversed = True

# Sketch on XZ plane
sketch11 = doc.addObject("Sketcher::SketchObject", "Sketch010")
body.addObject(sketch11)
sketch11.AttachmentSupport = (doc.XZ_Plane, [""])
sketch11.MapMode = "FlatFace"
sketch11.AttachmentOffset = App.Placement(App.Vector(0, 0, -13), App.Rotation())
sketch11.addGeometry(Part.Circle(App.Vector(0, -42, 0), App.Vector(0, 0, 1), 7), False)
sketch11.addConstraint([
    Sketcher.Constraint("PointOnObject", 0, 3, -2),
    Sketcher.Constraint("Diameter", 0, Q("14 mm")),
    Sketcher.Constraint("DistanceY", 0, 3, -1, 1, Q("42 mm")),
])
sketch11.setExpression("Constraints[1]", "Params.sketch11_diameter")
pocket10 = doc.addObject("PartDesign::Pocket", "Pocket009")
body.addObject(pocket10)
pocket10.Profile = sketch11
pocket10.setExpression("Length", "Params.pocket10_length")
pocket10.Reversed = True
doc.recompute()

chamfer = doc.addObject("PartDesign::Chamfer", "Chamfer")
body.addObject(chamfer)
chamfer.Base = (pocket10, edges_at(pocket10, [(-9, 6, -200)]))
chamfer.setExpression("Size", "Params.chamfer_size")

doc.recompute()
